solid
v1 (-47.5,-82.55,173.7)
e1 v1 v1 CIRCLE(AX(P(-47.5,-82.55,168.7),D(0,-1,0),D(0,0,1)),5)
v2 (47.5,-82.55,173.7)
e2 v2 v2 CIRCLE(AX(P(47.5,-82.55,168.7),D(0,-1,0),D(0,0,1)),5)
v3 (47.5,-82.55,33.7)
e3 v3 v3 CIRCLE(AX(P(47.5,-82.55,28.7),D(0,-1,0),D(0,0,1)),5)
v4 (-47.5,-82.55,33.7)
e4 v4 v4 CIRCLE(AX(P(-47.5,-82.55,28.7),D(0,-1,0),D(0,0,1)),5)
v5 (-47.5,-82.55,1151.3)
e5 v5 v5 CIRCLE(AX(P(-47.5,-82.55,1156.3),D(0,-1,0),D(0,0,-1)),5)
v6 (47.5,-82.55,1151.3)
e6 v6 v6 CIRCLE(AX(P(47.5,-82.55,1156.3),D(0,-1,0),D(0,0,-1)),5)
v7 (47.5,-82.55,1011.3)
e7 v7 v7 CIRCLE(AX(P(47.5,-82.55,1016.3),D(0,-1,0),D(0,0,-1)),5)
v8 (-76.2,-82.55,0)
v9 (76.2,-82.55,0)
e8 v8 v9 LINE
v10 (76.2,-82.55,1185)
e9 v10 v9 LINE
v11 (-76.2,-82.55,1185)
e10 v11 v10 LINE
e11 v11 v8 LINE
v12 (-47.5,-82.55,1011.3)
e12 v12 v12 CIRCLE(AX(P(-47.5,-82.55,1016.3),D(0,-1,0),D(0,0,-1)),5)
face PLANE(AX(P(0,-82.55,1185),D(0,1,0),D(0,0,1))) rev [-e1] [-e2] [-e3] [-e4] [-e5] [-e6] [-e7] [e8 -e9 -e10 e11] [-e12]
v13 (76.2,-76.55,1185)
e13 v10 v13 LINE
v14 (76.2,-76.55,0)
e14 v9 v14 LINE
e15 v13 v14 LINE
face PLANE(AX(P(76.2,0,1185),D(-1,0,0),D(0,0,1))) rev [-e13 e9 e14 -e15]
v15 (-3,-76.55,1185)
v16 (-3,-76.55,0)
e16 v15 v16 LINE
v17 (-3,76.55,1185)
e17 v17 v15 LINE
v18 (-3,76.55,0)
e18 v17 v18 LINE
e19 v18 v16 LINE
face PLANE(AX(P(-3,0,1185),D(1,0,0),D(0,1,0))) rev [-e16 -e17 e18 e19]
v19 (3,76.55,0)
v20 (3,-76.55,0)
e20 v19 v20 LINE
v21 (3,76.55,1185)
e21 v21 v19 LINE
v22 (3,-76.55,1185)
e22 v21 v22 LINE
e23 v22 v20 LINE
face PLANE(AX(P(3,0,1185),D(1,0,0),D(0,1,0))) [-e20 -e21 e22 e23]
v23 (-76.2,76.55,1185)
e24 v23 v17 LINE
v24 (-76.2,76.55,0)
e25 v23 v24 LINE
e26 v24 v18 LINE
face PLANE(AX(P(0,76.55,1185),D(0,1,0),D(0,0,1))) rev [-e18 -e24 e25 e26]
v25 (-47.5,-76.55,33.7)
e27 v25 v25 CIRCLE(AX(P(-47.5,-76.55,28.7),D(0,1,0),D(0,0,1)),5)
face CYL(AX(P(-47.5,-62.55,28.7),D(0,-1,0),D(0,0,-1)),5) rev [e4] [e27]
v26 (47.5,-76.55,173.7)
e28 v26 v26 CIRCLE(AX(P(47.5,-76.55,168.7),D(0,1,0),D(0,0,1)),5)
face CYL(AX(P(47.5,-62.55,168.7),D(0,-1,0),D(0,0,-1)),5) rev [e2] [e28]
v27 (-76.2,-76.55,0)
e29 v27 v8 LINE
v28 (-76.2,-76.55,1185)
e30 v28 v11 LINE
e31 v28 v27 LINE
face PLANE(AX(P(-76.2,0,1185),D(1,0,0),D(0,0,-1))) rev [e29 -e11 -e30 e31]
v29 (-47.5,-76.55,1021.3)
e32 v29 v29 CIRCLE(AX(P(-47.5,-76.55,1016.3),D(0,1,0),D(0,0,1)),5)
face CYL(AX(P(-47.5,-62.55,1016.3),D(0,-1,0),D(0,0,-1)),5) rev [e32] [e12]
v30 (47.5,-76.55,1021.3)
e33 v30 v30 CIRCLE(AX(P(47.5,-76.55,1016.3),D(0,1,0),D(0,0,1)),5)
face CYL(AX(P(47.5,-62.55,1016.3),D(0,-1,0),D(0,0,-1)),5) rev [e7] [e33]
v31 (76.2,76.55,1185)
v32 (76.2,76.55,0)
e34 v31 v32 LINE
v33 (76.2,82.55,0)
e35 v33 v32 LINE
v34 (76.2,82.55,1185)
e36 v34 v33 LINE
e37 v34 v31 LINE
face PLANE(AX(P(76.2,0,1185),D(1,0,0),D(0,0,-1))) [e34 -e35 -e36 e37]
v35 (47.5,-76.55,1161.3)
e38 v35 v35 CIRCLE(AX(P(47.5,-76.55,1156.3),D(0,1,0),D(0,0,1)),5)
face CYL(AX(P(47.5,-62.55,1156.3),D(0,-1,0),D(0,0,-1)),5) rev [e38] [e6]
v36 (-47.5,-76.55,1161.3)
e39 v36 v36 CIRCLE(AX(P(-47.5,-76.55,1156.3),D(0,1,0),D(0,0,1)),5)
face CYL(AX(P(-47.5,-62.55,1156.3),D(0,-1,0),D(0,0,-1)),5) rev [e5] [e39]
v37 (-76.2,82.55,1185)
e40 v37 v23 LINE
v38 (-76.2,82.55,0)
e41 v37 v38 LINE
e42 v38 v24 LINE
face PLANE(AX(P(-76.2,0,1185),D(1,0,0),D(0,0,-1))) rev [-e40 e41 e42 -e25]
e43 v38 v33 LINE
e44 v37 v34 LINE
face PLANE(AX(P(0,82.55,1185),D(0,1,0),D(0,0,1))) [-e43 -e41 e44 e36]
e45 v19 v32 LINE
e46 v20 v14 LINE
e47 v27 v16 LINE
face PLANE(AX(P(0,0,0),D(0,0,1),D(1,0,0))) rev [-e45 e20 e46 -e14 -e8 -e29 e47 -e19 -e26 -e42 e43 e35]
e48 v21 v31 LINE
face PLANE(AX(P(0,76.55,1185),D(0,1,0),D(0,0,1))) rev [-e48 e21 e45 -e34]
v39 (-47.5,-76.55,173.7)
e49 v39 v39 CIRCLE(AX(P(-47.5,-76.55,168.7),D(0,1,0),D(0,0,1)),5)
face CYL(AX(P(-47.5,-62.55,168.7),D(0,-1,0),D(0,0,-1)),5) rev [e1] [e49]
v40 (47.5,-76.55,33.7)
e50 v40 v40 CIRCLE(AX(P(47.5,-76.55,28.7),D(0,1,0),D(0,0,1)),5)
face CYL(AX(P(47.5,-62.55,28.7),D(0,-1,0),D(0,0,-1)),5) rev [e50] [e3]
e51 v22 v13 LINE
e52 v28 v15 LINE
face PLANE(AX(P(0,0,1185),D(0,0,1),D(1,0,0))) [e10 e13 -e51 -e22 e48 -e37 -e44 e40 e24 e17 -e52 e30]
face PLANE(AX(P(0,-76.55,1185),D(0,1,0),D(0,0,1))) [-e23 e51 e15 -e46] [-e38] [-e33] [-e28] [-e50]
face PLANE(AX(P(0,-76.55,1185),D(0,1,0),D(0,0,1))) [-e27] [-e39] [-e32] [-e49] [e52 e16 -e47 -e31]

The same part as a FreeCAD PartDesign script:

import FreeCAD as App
import Part
import Sketcher

V = App.Vector


def add_polygon(sketch, points):
    """Adds a closed chain of lines whose ends are joined by coincident constraints."""
    first, n = sketch.GeometryCount, len(points)
    for a, b in zip(points, points[1:] + points[:1]):
        sketch.addGeometry(Part.LineSegment(App.Vector(*a, 0), App.Vector(*b, 0)), False)
    for i in range(n):
        sketch.addConstraint(Sketcher.Constraint("Coincident", first + i, 2, first + (i + 1) % n, 1))

doc = App.newDocument("Part")
params = doc.addObject("Spreadsheet::Sheet", "Params")
for row, (alias, value) in enumerate([
    ("sketch1_height", "6 mm"),
    ("sketch1_width", "73.2 mm"),
    ("sketch1_width2", "152.4 mm"),
    ("sketch1_height2", "153.1 mm"),
    ("pad1_length", "1185 mm"),
    ("sketch2_diameter", "10 mm"),
    ("pocket1_length", "20 mm"),
], start=1):
    params.set(f"A{row}", alias)
    params.set(f"B{row}", "=" + value)
    params.setAlias(f"B{row}", alias)

body = doc.addObject("PartDesign::Body", "Body")

# Sketch on XY plane
sketch1 = body.newObject("Sketcher::SketchObject", "Sketch")
sketch1.AttachmentSupport = (doc.getObject("XY_Plane"), [""])
sketch1.MapMode = "FlatFace"
add_polygon(sketch1, [(76, -77), (3, -77), (3, 77), (76, 77), (76, 83), (-76, 83), (-76, 77), (-3, 77), (-3, -77), (-76, -77), (-76, -83), (76, -83)])  # lines 0-11
sketch1.addConstraint([
    Sketcher.Constraint("Horizontal", 0),
    Sketcher.Constraint("Vertical", 1),
    Sketcher.Constraint("Horizontal", 2),
    Sketcher.Constraint("Vertical", 3),
    Sketcher.Constraint("Horizontal", 4),
    Sketcher.Constraint("Vertical", 5),
    Sketcher.Constraint("Horizontal", 6),
    Sketcher.Constraint("Vertical", 7),
    Sketcher.Constraint("Horizontal", 8),
    Sketcher.Constraint("Vertical", 9),
    Sketcher.Constraint("Horizontal", 10),
    Sketcher.Constraint("Vertical", 11),
    Sketcher.Constraint("Symmetric", 0, 2, 6, 2, -1, 1),
    Sketcher.Constraint("Symmetric", 2, 2, 8, 2, -1, 1),
    Sketcher.Constraint("Symmetric", 4, 2, 10, 2, -1, 1),
    Sketcher.Constraint("Symmetric", 2, 2, 5, 2, -2),
    Sketcher.Constraint("DistanceY", 3, 1, 3, 2, 6.0),
    Sketcher.Constraint("DistanceX", 0, 2, 0, 1, 73.2),
    Sketcher.Constraint("DistanceX", 4, 2, 4, 1, 152.4),
    Sketcher.Constraint("DistanceY", 1, 1, 1, 2, 153.1),
])
sketch1.setExpression("Constraints[28]", "Params.sketch1_height")
sketch1.setExpression("Constraints[29]", "Params.sketch1_width")
sketch1.setExpression("Constraints[30]", "Params.sketch1_width2")
sketch1.setExpression("Constraints[31]", "Params.sketch1_height2")
pad1 = body.newObject("PartDesign::Pad", "Pad")
pad1.Profile = sketch1
pad1.setExpression("Length", "Params.pad1_length")

# Sketch on XZ plane
sketch2 = body.newObject("Sketcher::SketchObject", "Sketch001")
sketch2.AttachmentSupport = (doc.getObject("XZ_Plane"), [""])
sketch2.MapMode = "FlatFace"
sketch2.AttachmentOffset = App.Placement(V(0, 0, 82.55), App.Rotation())
sketch2.addGeometry([
    Part.Circle(V(-48, 1156, 0), V(0, 0, 1), 5),  # 0
    Part.Circle(V(48, 1156, 0), V(0, 0, 1), 5),  # 1
    Part.Circle(V(-48, 1016, 0), V(0, 0, 1), 5),  # 2
    Part.Circle(V(48, 1016, 0), V(0, 0, 1), 5),  # 3
    Part.Circle(V(48, 169, 0), V(0, 0, 1), 5),  # 4
    Part.Circle(V(-48, 169, 0), V(0, 0, 1), 5),  # 5
    Part.Circle(V(48, 29, 0), V(0, 0, 1), 5),  # 6
    Part.Circle(V(-48, 29, 0), V(0, 0, 1), 5),  # 7
], False)
sketch2.addConstraint([
    Sketcher.Constraint("Equal", 0, 1),
    Sketcher.Constraint("Equal", 1, 2),
    Sketcher.Constraint("Equal", 2, 3),
    Sketcher.Constraint("Equal", 3, 4),
    Sketcher.Constraint("Equal", 4, 5),
    Sketcher.Constraint("Equal", 5, 6),
    Sketcher.Constraint("Equal", 6, 7),
    Sketcher.Constraint("Symmetric", 0, 3, 1, 3, -2),
    Sketcher.Constraint("Symmetric", 2, 3, 3, 3, -2),
    Sketcher.Constraint("Symmetric", 4, 3, 5, 3, -2),
    Sketcher.Constraint("Symmetric", 6, 3, 7, 3, -2),
    Sketcher.Constraint("Vertical", 0, 3, 2, 3),
    Sketcher.Constraint("Vertical", 3, 3, 4, 3),
    Sketcher.Constraint("Vertical", 4, 3, 6, 3),
    Sketcher.Constraint("Diameter", 0, 10.0),
    Sketcher.Constraint("DistanceX", 0, 3, 1, 3, 95.0),
    Sketcher.Constraint("DistanceY", 2, 3, 0, 3, 140.0),
    Sketcher.Constraint("DistanceY", 6, 3, 4, 3, 140.0),
    Sketcher.Constraint("DistanceY", -1, 1, 0, 3, 1156.3),
    Sketcher.Constraint("DistanceY", -1, 1, 4, 3, 168.7),
])
sketch2.setExpression("Constraints[14]", "Params.sketch2_diameter")
pocket1 = body.newObject("PartDesign::Pocket", "Pocket")
pocket1.Profile = sketch2
pocket1.setExpression("Length", "Params.pocket1_length")

doc.recompute()
